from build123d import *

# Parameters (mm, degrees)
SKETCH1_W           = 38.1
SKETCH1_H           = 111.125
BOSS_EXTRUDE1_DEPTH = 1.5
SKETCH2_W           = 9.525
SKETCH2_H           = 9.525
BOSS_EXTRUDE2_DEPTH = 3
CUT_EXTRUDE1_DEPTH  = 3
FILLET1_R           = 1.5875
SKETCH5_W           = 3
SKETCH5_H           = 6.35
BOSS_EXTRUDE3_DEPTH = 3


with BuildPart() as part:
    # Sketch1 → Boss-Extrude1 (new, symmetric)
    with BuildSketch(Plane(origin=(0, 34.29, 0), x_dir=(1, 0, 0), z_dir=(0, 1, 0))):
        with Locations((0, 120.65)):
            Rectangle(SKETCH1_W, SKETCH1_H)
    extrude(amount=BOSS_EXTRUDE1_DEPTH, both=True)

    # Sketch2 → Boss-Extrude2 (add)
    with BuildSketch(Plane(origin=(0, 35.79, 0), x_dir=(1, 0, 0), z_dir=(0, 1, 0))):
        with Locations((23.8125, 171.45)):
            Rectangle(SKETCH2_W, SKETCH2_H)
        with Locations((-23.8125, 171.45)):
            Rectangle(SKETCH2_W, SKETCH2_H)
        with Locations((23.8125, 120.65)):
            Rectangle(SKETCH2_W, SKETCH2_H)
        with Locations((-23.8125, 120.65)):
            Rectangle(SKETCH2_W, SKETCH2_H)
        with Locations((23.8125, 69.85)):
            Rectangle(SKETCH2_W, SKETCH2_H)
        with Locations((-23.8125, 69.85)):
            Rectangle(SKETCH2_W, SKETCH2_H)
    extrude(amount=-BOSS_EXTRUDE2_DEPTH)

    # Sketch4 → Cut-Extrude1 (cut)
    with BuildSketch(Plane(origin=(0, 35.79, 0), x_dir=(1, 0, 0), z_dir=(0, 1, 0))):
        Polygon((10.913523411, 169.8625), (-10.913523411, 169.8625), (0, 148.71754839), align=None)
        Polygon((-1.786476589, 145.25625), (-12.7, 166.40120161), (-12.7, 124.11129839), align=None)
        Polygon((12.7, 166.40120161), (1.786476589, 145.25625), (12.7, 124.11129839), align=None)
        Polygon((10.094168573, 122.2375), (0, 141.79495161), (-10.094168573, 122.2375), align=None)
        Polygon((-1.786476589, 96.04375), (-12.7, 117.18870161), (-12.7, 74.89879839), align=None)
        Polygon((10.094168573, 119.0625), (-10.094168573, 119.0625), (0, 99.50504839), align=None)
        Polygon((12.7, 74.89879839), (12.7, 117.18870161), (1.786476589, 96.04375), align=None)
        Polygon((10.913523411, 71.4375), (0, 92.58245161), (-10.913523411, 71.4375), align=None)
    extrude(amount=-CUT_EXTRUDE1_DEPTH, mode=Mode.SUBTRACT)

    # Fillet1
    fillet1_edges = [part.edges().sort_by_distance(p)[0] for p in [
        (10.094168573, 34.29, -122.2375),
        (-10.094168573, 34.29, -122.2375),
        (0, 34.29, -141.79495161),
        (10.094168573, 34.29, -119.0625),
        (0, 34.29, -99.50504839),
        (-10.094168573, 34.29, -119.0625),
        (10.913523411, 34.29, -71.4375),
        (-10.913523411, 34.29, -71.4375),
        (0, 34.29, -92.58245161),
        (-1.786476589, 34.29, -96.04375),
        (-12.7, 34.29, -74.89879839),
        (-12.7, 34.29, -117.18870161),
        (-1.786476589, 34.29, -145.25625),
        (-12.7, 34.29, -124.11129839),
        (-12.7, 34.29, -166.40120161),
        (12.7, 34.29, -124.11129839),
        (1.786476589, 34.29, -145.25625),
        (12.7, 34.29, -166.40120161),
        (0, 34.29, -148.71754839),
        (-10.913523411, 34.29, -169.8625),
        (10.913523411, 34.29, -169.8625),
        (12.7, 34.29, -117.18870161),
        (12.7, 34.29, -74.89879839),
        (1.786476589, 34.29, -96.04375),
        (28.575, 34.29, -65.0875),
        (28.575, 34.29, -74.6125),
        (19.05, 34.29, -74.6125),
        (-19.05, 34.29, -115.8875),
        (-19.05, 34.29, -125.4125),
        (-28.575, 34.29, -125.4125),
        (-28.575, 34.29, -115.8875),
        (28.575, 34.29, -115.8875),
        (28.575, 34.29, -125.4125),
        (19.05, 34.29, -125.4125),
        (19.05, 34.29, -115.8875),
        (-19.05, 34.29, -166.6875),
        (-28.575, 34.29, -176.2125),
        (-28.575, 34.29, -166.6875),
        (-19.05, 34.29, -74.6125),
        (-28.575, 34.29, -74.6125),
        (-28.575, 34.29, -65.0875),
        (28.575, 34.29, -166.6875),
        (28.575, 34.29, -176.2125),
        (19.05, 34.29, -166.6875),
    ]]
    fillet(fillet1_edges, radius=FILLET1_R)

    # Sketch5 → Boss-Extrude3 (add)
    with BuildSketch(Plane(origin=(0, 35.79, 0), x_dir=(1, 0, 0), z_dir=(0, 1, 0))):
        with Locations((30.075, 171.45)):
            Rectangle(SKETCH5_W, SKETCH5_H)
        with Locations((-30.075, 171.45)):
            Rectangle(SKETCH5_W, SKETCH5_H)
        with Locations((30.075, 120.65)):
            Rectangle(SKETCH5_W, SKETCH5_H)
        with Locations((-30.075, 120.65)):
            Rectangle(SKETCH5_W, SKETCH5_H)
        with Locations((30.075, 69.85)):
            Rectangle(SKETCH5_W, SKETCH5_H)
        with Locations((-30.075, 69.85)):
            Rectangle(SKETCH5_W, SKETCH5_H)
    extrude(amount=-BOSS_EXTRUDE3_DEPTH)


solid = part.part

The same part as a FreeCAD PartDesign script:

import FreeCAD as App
import Part
import Sketcher
Q = App.Units.Quantity


def edges_at(feature, points):
    """Names of the edges that pass closest to the given points."""
    edges = feature.Shape.Edges
    near = lambda p: min(range(len(edges)), key=lambda i: edges[i].distToShape(Part.Vertex(*p))[0])
    return sorted({f"Edge{near(p) + 1}" for p in points})

doc = App.newDocument("Part")
body = doc.addObject("PartDesign::Body", "Body")

# Sketch on XZ plane
sketch1 = body.newObject("Sketcher::SketchObject", "Sketch")
sketch1.AttachmentSupport = (doc.getObject("XZ_Plane"), [""])
sketch1.MapMode = "FlatFace"
sketch1.AttachmentOffset = App.Placement(App.Vector(0, 0, -1.35 * 25.4), App.Rotation())
sketch1.addGeometry([
    Part.LineSegment(App.Vector(-19, -176, 0), App.Vector(-19, -65, 0)),
    Part.LineSegment(App.Vector(-19, -65, 0), App.Vector(19, -65, 0)),
    Part.LineSegment(App.Vector(19, -65, 0), App.Vector(19, -176, 0)),
    Part.LineSegment(App.Vector(19, -176, 0), App.Vector(-19, -176, 0)),
], False)
sketch1.addConstraint([
    Sketcher.Constraint("Coincident", 0, 2, 1, 1),
    Sketcher.Constraint("Coincident", 1, 2, 2, 1),
    Sketcher.Constraint("Coincident", 2, 2, 3, 1),
    Sketcher.Constraint("Coincident", 3, 2, 0, 1),
    Sketcher.Constraint("Vertical", 0),
    Sketcher.Constraint("Horizontal", 1),
    Sketcher.Constraint("Vertical", 2),
    Sketcher.Constraint("Horizontal", 3),
    Sketcher.Constraint("DistanceX", 1, 1, 1, 2, Q("1.5 in")),
    Sketcher.Constraint("DistanceY", 0, 1, 0, 2, Q("4.375 in")),
    Sketcher.Constraint("DistanceX", 0, 2, -1, 1, Q("0.75 in")),
    Sketcher.Constraint("DistanceY", 0, 2, -1, 1, Q("2.5625 in")),
])
pad1 = body.newObject("PartDesign::Pad", "Pad")
pad1.Profile = sketch1
pad1.Length = 3
pad1.Midplane = True

# Sketch on XZ plane
sketch2 = body.newObject("Sketcher::SketchObject", "Sketch001")
sketch2.AttachmentSupport = (doc.getObject("XZ_Plane"), [""])
sketch2.MapMode = "FlatFace"
sketch2.AttachmentOffset = App.Placement(App.Vector(0, 0, -35.79), App.Rotation())
sketch2.addGeometry([
    Part.LineSegment(App.Vector(19, -176, 0), App.Vector(19, -167, 0)),  # 0
    Part.LineSegment(App.Vector(19, -167, 0), App.Vector(29, -167, 0)),  # 1
    Part.LineSegment(App.Vector(29, -167, 0), App.Vector(29, -176, 0)),  # 2
    Part.LineSegment(App.Vector(29, -176, 0), App.Vector(19, -176, 0)),  # 3
    Part.LineSegment(App.Vector(-29, -176, 0), App.Vector(-29, -167, 0)),  # 4
    Part.LineSegment(App.Vector(-29, -167, 0), App.Vector(-19, -167, 0)),  # 5
    Part.LineSegment(App.Vector(-19, -167, 0), App.Vector(-19, -176, 0)),  # 6
    Part.LineSegment(App.Vector(-19, -176, 0), App.Vector(-29, -176, 0)),  # 7
    Part.LineSegment(App.Vector(19, -125, 0), App.Vector(19, -116, 0)),  # 8
    Part.LineSegment(App.Vector(19, -116, 0), App.Vector(29, -116, 0)),  # 9
    Part.LineSegment(App.Vector(29, -116, 0), App.Vector(29, -125, 0)),  # 10
    Part.LineSegment(App.Vector(29, -125, 0), App.Vector(19, -125, 0)),  # 11
    Part.LineSegment(App.Vector(-29, -125, 0), App.Vector(-29, -116, 0)),  # 12
    Part.LineSegment(App.Vector(-29, -116, 0), App.Vector(-19, -116, 0)),  # 13
    Part.LineSegment(App.Vector(-19, -116, 0), App.Vector(-19, -125, 0)),  # 14
    Part.LineSegment(App.Vector(-19, -125, 0), App.Vector(-29, -125, 0)),  # 15
    Part.LineSegment(App.Vector(19, -75, 0), App.Vector(19, -65, 0)),  # 16
    Part.LineSegment(App.Vector(19, -65, 0), App.Vector(29, -65, 0)),  # 17
    Part.LineSegment(App.Vector(29, -65, 0), App.Vector(29, -75, 0)),  # 18
    Part.LineSegment(App.Vector(29, -75, 0), App.Vector(19, -75, 0)),  # 19
    Part.LineSegment(App.Vector(-29, -75, 0), App.Vector(-29, -65, 0)),  # 20
    Part.LineSegment(App.Vector(-29, -65, 0), App.Vector(-19, -65, 0)),  # 21
    Part.LineSegment(App.Vector(-19, -65, 0), App.Vector(-19, -75, 0)),  # 22
    Part.LineSegment(App.Vector(-19, -75, 0), App.Vector(-29, -75, 0)),  # 23
], False)
sketch2.addConstraint([
    Sketcher.Constraint("Coincident", 0, 2, 1, 1),
    Sketcher.Constraint("Coincident", 1, 2, 2, 1),
    Sketcher.Constraint("Coincident", 2, 2, 3, 1),
    Sketcher.Constraint("Coincident", 3, 2, 0, 1),
    Sketcher.Constraint("Coincident", 4, 2, 5, 1),
    Sketcher.Constraint("Coincident", 5, 2, 6, 1),
    Sketcher.Constraint("Coincident", 6, 2, 7, 1),
    Sketcher.Constraint("Coincident", 7, 2, 4, 1),
    Sketcher.Constraint("Coincident", 8, 2, 9, 1),
    Sketcher.Constraint("Coincident", 9, 2, 10, 1),
    Sketcher.Constraint("Coincident", 10, 2, 11, 1),
    Sketcher.Constraint("Coincident", 11, 2, 8, 1),
    Sketcher.Constraint("Coincident", 12, 2, 13, 1),
    Sketcher.Constraint("Coincident", 13, 2, 14, 1),
    Sketcher.Constraint("Coincident", 14, 2, 15, 1),
    Sketcher.Constraint("Coincident", 15, 2, 12, 1),
    Sketcher.Constraint("Coincident", 16, 2, 17, 1),
    Sketcher.Constraint("Coincident", 17, 2, 18, 1),
    Sketcher.Constraint("Coincident", 18, 2, 19, 1),
    Sketcher.Constraint("Coincident", 19, 2, 16, 1),
    Sketcher.Constraint("Coincident", 20, 2, 21, 1),
    Sketcher.Constraint("Coincident", 21, 2, 22, 1),
    Sketcher.Constraint("Coincident", 22, 2, 23, 1),
    Sketcher.Constraint("Coincident", 23, 2, 20, 1),
    Sketcher.Constraint("Vertical", 0),
    Sketcher.Constraint("Horizontal", 1),
    Sketcher.Constraint("Vertical", 2),
    Sketcher.Constraint("Horizontal", 3),
    Sketcher.Constraint("Vertical", 4),
    Sketcher.Constraint("Horizontal", 5),
    Sketcher.Constraint("Vertical", 6),
    Sketcher.Constraint("Horizontal", 7),
    Sketcher.Constraint("Vertical", 8),
    Sketcher.Constraint("Horizontal", 9),
    Sketcher.Constraint("Vertical", 10),
    Sketcher.Constraint("Horizontal", 11),
    Sketcher.Constraint("Vertical", 12),
    Sketcher.Constraint("Horizontal", 13),
    Sketcher.Constraint("Vertical", 14),
    Sketcher.Constraint("Horizontal", 15),
    Sketcher.Constraint("Vertical", 16),
    Sketcher.Constraint("Horizontal", 17),
    Sketcher.Constraint("Vertical", 18),
    Sketcher.Constraint("Horizontal", 19),
    Sketcher.Constraint("Vertical", 20),
    Sketcher.Constraint("Horizontal", 21),
    Sketcher.Constraint("Vertical", 22),
    Sketcher.Constraint("Horizontal", 23),
    Sketcher.Constraint("Symmetric", 1, 2, 4, 2, -2),
    Sketcher.Constraint("Symmetric", 3, 2, 6, 2, -2),
    Sketcher.Constraint("Symmetric", 9, 2, 12, 2, -2),
    Sketcher.Constraint("Symmetric", 11, 2, 14, 2, -2),
    Sketcher.Constraint("Symmetric", 17, 2, 20, 2, -2),
    Sketcher.Constraint("Symmetric", 19, 2, 22, 2, -2),
    Sketcher.Constraint("Vertical", 3, 2, 8, 2),
    Sketcher.Constraint("Vertical", 2, 2, 9, 2),
    Sketcher.Constraint("Vertical", 11, 2, 16, 2),
    Sketcher.Constraint("Vertical", 10, 2, 17, 2),
    Sketcher.Constraint("Equal", 23, 0),
    Sketcher.Constraint("Equal", 6, 8),
    Sketcher.Constraint("Equal", 14, 16),
    Sketcher.Constraint("DistanceY", 0, 2, 8, 2, Q("2 in")),
    Sketcher.Constraint("DistanceY", 8, 2, 16, 2, Q("2 in")),
    Sketcher.Constraint("DistanceX", 5, 2, 0, 2, Q("1.5 in")),
    Sketcher.Constraint("DistanceX", 1, 1, 1, 2, Q("0.375 in")),
    Sketcher.Constraint("DistanceY", 0, 2, -1, 1, Q("6.5625 in")),
])
pad2 = body.newObject("PartDesign::Pad", "Pad001")
pad2.Profile = sketch2
pad2.Length = 3

# Sketch on XZ plane
sketch3 = body.newObject("Sketcher::SketchObject", "Sketch002")
sketch3.AttachmentSupport = (doc.getObject("XZ_Plane"), [""])
sketch3.MapMode = "FlatFace"
sketch3.AttachmentOffset = App.Placement(App.Vector(0, 0, -35.79), App.Rotation())
sketch3.addGeometry([
    Part.LineSegment(App.Vector(11, -170, 0), App.Vector(-11, -170, 0)),  # 0
    Part.LineSegment(App.Vector(-11, -170, 0), App.Vector(0, -149, 0)),  # 1
    Part.LineSegment(App.Vector(0, -149, 0), App.Vector(11, -170, 0)),  # 2
    Part.LineSegment(App.Vector(-2, -145, 0), App.Vector(-13, -166, 0)),  # 3
    Part.LineSegment(App.Vector(-13, -166, 0), App.Vector(-13, -124, 0)),  # 4
    Part.LineSegment(App.Vector(-13, -124, 0), App.Vector(-2, -145, 0)),  # 5
    Part.LineSegment(App.Vector(13, -166, 0), App.Vector(2, -145, 0)),  # 6
    Part.LineSegment(App.Vector(2, -145, 0), App.Vector(13, -124, 0)),  # 7
    Part.LineSegment(App.Vector(13, -124, 0), App.Vector(13, -166, 0)),  # 8
    Part.LineSegment(App.Vector(10, -122, 0), App.Vector(0, -142, 0)),  # 9
    Part.LineSegment(App.Vector(0, -142, 0), App.Vector(-10, -122, 0)),  # 10
    Part.LineSegment(App.Vector(-10, -122, 0), App.Vector(10, -122, 0)),  # 11
    Part.LineSegment(App.Vector(-2, -96, 0), App.Vector(-13, -117, 0)),  # 12
    Part.LineSegment(App.Vector(-13, -117, 0), App.Vector(-13, -75, 0)),  # 13
    Part.LineSegment(App.Vector(-13, -75, 0), App.Vector(-2, -96, 0)),  # 14
    Part.LineSegment(App.Vector(10, -119, 0), App.Vector(-10, -119, 0)),  # 15
    Part.LineSegment(App.Vector(-10, -119, 0), App.Vector(0, -100, 0)),  # 16
    Part.LineSegment(App.Vector(0, -100, 0), App.Vector(10, -119, 0)),  # 17
    Part.LineSegment(App.Vector(13, -75, 0), App.Vector(13, -117, 0)),  # 18
    Part.LineSegment(App.Vector(13, -117, 0), App.Vector(2, -96, 0)),  # 19
    Part.LineSegment(App.Vector(2, -96, 0), App.Vector(13, -75, 0)),  # 20
    Part.LineSegment(App.Vector(11, -71, 0), App.Vector(0, -93, 0)),  # 21
    Part.LineSegment(App.Vector(0, -93, 0), App.Vector(-11, -71, 0)),  # 22
    Part.LineSegment(App.Vector(-11, -71, 0), App.Vector(11, -71, 0)),  # 23
], False)
sketch3.addConstraint([
    Sketcher.Constraint("Coincident", 0, 2, 1, 1),
    Sketcher.Constraint("Coincident", 1, 2, 2, 1),
    Sketcher.Constraint("Coincident", 2, 2, 0, 1),
    Sketcher.Constraint("Coincident", 3, 2, 4, 1),
    Sketcher.Constraint("Coincident", 4, 2, 5, 1),
    Sketcher.Constraint("Coincident", 5, 2, 3, 1),
    Sketcher.Constraint("Coincident", 6, 2, 7, 1),
    Sketcher.Constraint("Coincident", 7, 2, 8, 1),
    Sketcher.Constraint("Coincident", 8, 2, 6, 1),
    Sketcher.Constraint("Coincident", 9, 2, 10, 1),
    Sketcher.Constraint("Coincident", 10, 2, 11, 1),
    Sketcher.Constraint("Coincident", 11, 2, 9, 1),
    Sketcher.Constraint("Coincident", 12, 2, 13, 1),
    Sketcher.Constraint("Coincident", 13, 2, 14, 1),
    Sketcher.Constraint("Coincident", 14, 2, 12, 1),
    Sketcher.Constraint("Coincident", 15, 2, 16, 1),
    Sketcher.Constraint("Coincident", 16, 2, 17, 1),
    Sketcher.Constraint("Coincident", 17, 2, 15, 1),
    Sketcher.Constraint("Coincident", 18, 2, 19, 1),
    Sketcher.Constraint("Coincident", 19, 2, 20, 1),
    Sketcher.Constraint("Coincident", 20, 2, 18, 1),
    Sketcher.Constraint("Coincident", 21, 2, 22, 1),
    Sketcher.Constraint("Coincident", 22, 2, 23, 1),
    Sketcher.Constraint("Coincident", 23, 2, 21, 1),
    Sketcher.Constraint("Horizontal", 0),
    Sketcher.Constraint("Vertical", 4),
    Sketcher.Constraint("Vertical", 8),
    Sketcher.Constraint("Horizontal", 11),
    Sketcher.Constraint("Vertical", 13),
    Sketcher.Constraint("Horizontal", 15),
    Sketcher.Constraint("Vertical", 18),
    Sketcher.Constraint("Horizontal", 23),
    Sketcher.Constraint("Symmetric", 5, 2, 6, 2, -2),
    Sketcher.Constraint("Symmetric", 4, 2, 7, 2, -2),
    Sketcher.Constraint("Symmetric", 12, 2, 18, 2, -2),
    Sketcher.Constraint("Symmetric", 14, 2, 19, 2, -2),
    Sketcher.Constraint("PointOnObject", 1, 2, -2),
    Sketcher.Constraint("PointOnObject", 9, 2, -2),
    Sketcher.Constraint("PointOnObject", 16, 2, -2),
    Sketcher.Constraint("PointOnObject", 21, 2, -2),
    Sketcher.Constraint("Parallel", 1, 3),
    Sketcher.Constraint("Parallel", 2, 5),
    Sketcher.Constraint("Parallel", 5, 6),
    Sketcher.Constraint("Parallel", 3, 7),
    Sketcher.Constraint("Parallel", 7, 9),
    Sketcher.Constraint("Parallel", 6, 10),
    Sketcher.Constraint("Parallel", 9, 12),
    Sketcher.Constraint("Parallel", 10, 14),
    Sketcher.Constraint("Parallel", 12, 16),
    Sketcher.Constraint("Parallel", 14, 17),
    Sketcher.Constraint("Parallel", 16, 20),
    Sketcher.Constraint("Parallel", 20, 21),
    Sketcher.Constraint("Parallel", 19, 22),
    Sketcher.Constraint("Vertical", 4, 2, 12, 2),
    Sketcher.Constraint("Vertical", 5, 2, 14, 2),
    Sketcher.Constraint("Vertical", 10, 2, 15, 2),
    Sketcher.Constraint("Vertical", 0, 2, 22, 2),
    Sketcher.Constraint("Equal", 2, 3),
    Sketcher.Constraint("DistanceX", 4, 2, 7, 2, Q("1 in")),
    Sketcher.Constraint("DistanceY", 0, 2, -1, 1, Q("6.6875 in")),
    Sketcher.Constraint("DistanceY", 5, 2, -1, 1, Q("5.71875 in")),
    Sketcher.Constraint("DistanceY", 10, 2, -1, 1, Q("4.8125 in")),
    Sketcher.Constraint("DistanceY", 14, 2, -1, 1, Q("3.78125 in")),
    Sketcher.Constraint("DistanceY", 15, 2, -1, 1, Q("4.6875 in")),
    Sketcher.Constraint("DistanceY", 22, 2, -1, 1, Q("2.8125 in")),
    Sketcher.Constraint("DistanceY", 9, 2, 12, 2, Q("0.96875 in")),
    Sketcher.Constraint("DistanceY", 3, 2, -1, 1, Q("166.401202 mm")),
    Sketcher.Constraint("Distance", 1, Q("23.795251 mm")),
])
pocket1 = body.newObject("PartDesign::Pocket", "Pocket")
pocket1.Profile = sketch3
pocket1.Length = 3
pocket1.Reversed = True
doc.recompute()

fillet = body.newObject("PartDesign::Fillet", "Fillet")
fillet.Base = (pocket1, edges_at(pocket1, [
    (10.094, 34.29, -122.237),
    (-10.094, 34.29, -122.237),
    (0, 34.29, -141.795),
    (10.094, 34.29, -119.062),
    (0, 34.29, -99.505),
    (-10.094, 34.29, -119.062),
    (10.914, 34.29, -71.438),
    (-10.914, 34.29, -71.438),
    (0, 34.29, -92.582),
    (-1.786, 34.29, -96.044),
    (-12.7, 34.29, -74.899),
    (-12.7, 34.29, -117.189),
    (-1.786, 34.29, -145.256),
    (-12.7, 34.29, -124.111),
    (-12.7, 34.29, -166.401),
    (12.7, 34.29, -124.111),
    (1.786, 34.29, -145.256),
    (12.7, 34.29, -166.401),
    (0, 34.29, -148.718),
    (-10.914, 34.29, -169.863),
    (10.914, 34.29, -169.863),
    (12.7, 34.29, -117.189),
    (12.7, 34.29, -74.899),
    (1.786, 34.29, -96.044),
    (28.575, 34.29, -65.088),
    (28.575, 34.29, -74.612),
    (19.05, 34.29, -74.612),
    (-19.05, 34.29, -115.888),
    (-19.05, 34.29, -125.412),
    (-28.575, 34.29, -125.412),
    (-28.575, 34.29, -115.888),
    (28.575, 34.29, -115.888),
    (28.575, 34.29, -125.412),
    (19.05, 34.29, -125.412),
    (19.05, 34.29, -115.888),
    (-19.05, 34.29, -166.688),
    (-28.575, 34.29, -176.213),
    (-28.575, 34.29, -166.688),
    (-19.05, 34.29, -74.612),
    (-28.575, 34.29, -74.612),
    (-28.575, 34.29, -65.088),
    (28.575, 34.29, -166.688),
    (28.575, 34.29, -176.213),
    (19.05, 34.29, -166.688),
]))
fillet.Radius = Q("0.0625 in")

# Sketch on XZ plane
sketch4 = body.newObject("Sketcher::SketchObject", "Sketch003")
sketch4.AttachmentSupport = (doc.getObject("XZ_Plane"), [""])
sketch4.MapMode = "FlatFace"
sketch4.AttachmentOffset = App.Placement(App.Vector(0, 0, -35.79), App.Rotation())
sketch4.addGeometry([
    Part.LineSegment(App.Vector(28.6, -174.6, 0), App.Vector(28.6, -168.3, 0)),  # 0
    Part.LineSegment(App.Vector(28.6, -168.3, 0), App.Vector(31.6, -168.3, 0)),  # 1
    Part.LineSegment(App.Vector(31.6, -168.3, 0), App.Vector(31.6, -174.6, 0)),  # 2
    Part.LineSegment(App.Vector(31.6, -174.6, 0), App.Vector(28.6, -174.6, 0)),  # 3
    Part.LineSegment(App.Vector(-31.6, -174.6, 0), App.Vector(-31.6, -168.3, 0)),  # 4
    Part.LineSegment(App.Vector(-31.6, -168.3, 0), App.Vector(-28.6, -168.3, 0)),  # 5
    Part.LineSegment(App.Vector(-28.6, -168.3, 0), App.Vector(-28.6, -174.6, 0)),  # 6
    Part.LineSegment(App.Vector(-28.6, -174.6, 0), App.Vector(-31.6, -174.6, 0)),  # 7
    Part.LineSegment(App.Vector(28.6, -123.8, 0), App.Vector(28.6, -117.5, 0)),  # 8
    Part.LineSegment(App.Vector(28.6, -117.5, 0), App.Vector(31.6, -117.5, 0)),  # 9
    Part.LineSegment(App.Vector(31.6, -117.5, 0), App.Vector(31.6, -123.8, 0)),  # 10
    Part.LineSegment(App.Vector(31.6, -123.8, 0), App.Vector(28.6, -123.8, 0)),  # 11
    Part.LineSegment(App.Vector(-31.6, -123.8, 0), App.Vector(-31.6, -117.5, 0)),  # 12
    Part.LineSegment(App.Vector(-31.6, -117.5, 0), App.Vector(-28.6, -117.5, 0)),  # 13
    Part.LineSegment(App.Vector(-28.6, -117.5, 0), App.Vector(-28.6, -123.8, 0)),  # 14
    Part.LineSegment(App.Vector(-28.6, -123.8, 0), App.Vector(-31.6, -123.8, 0)),  # 15
    Part.LineSegment(App.Vector(28.6, -73, 0), App.Vector(28.6, -66.7, 0)),  # 16
    Part.LineSegment(App.Vector(28.6, -66.7, 0), App.Vector(31.6, -66.7, 0)),  # 17
    Part.LineSegment(App.Vector(31.6, -66.7, 0), App.Vector(31.6, -73, 0)),  # 18
    Part.LineSegment(App.Vector(31.6, -73, 0), App.Vector(28.6, -73, 0)),  # 19
    Part.LineSegment(App.Vector(-31.6, -73, 0), App.Vector(-31.6, -66.7, 0)),  # 20
    Part.LineSegment(App.Vector(-31.6, -66.7, 0), App.Vector(-28.6, -66.7, 0)),  # 21
    Part.LineSegment(App.Vector(-28.6, -66.7, 0), App.Vector(-28.6, -73, 0)),  # 22
    Part.LineSegment(App.Vector(-28.6, -73, 0), App.Vector(-31.6, -73, 0)),  # 23
], False)
sketch4.addConstraint([
    Sketcher.Constraint("Coincident", 0, 2, 1, 1),
    Sketcher.Constraint("Coincident", 1, 2, 2, 1),
    Sketcher.Constraint("Coincident", 2, 2, 3, 1),
    Sketcher.Constraint("Coincident", 3, 2, 0, 1),
    Sketcher.Constraint("Coincident", 4, 2, 5, 1),
    Sketcher.Constraint("Coincident", 5, 2, 6, 1),
    Sketcher.Constraint("Coincident", 6, 2, 7, 1),
    Sketcher.Constraint("Coincident", 7, 2, 4, 1),
    Sketcher.Constraint("Coincident", 8, 2, 9, 1),
    Sketcher.Constraint("Coincident", 9, 2, 10, 1),
    Sketcher.Constraint("Coincident", 10, 2, 11, 1),
    Sketcher.Constraint("Coincident", 11, 2, 8, 1),
    Sketcher.Constraint("Coincident", 12, 2, 13, 1),
    Sketcher.Constraint("Coincident", 13, 2, 14, 1),
    Sketcher.Constraint("Coincident", 14, 2, 15, 1),
    Sketcher.Constraint("Coincident", 15, 2, 12, 1),
    Sketcher.Constraint("Coincident", 16, 2, 17, 1),
    Sketcher.Constraint("Coincident", 17, 2, 18, 1),
    Sketcher.Constraint("Coincident", 18, 2, 19, 1),
    Sketcher.Constraint("Coincident", 19, 2, 16, 1),
    Sketcher.Constraint("Coincident", 20, 2, 21, 1),
    Sketcher.Constraint("Coincident", 21, 2, 22, 1),
    Sketcher.Constraint("Coincident", 22, 2, 23, 1),
    Sketcher.Constraint("Coincident", 23, 2, 20, 1),
    Sketcher.Constraint("Vertical", 0),
    Sketcher.Constraint("Horizontal", 1),
    Sketcher.Constraint("Vertical", 2),
    Sketcher.Constraint("Horizontal", 3),
    Sketcher.Constraint("Vertical", 4),
    Sketcher.Constraint("Horizontal", 5),
    Sketcher.Constraint("Vertical", 6),
    Sketcher.Constraint("Horizontal", 7),
    Sketcher.Constraint("Vertical", 8),
    Sketcher.Constraint("Horizontal", 9),
    Sketcher.Constraint("Vertical", 10),
    Sketcher.Constraint("Horizontal", 11),
    Sketcher.Constraint("Vertical", 12),
    Sketcher.Constraint("Horizontal", 13),
    Sketcher.Constraint("Vertical", 14),
    Sketcher.Constraint("Horizontal", 15),
    Sketcher.Constraint("Vertical", 16),
    Sketcher.Constraint("Horizontal", 17),
    Sketcher.Constraint("Vertical", 18),
    Sketcher.Constraint("Horizontal", 19),
    Sketcher.Constraint("Vertical", 20),
    Sketcher.Constraint("Horizontal", 21),
    Sketcher.Constraint("Vertical", 22),
    Sketcher.Constraint("Horizontal", 23),
    Sketcher.Constraint("Symmetric", 1, 2, 4, 2, -2),
    Sketcher.Constraint("Symmetric", 3, 2, 6, 2, -2),
    Sketcher.Constraint("Symmetric", 9, 2, 12, 2, -2),
    Sketcher.Constraint("Symmetric", 11, 2, 14, 2, -2),
    Sketcher.Constraint("Symmetric", 17, 2, 20, 2, -2),
    Sketcher.Constraint("Symmetric", 19, 2, 22, 2, -2),
    Sketcher.Constraint("Vertical", 3, 2, 8, 2),
    Sketcher.Constraint("Vertical", 2, 2, 9, 2),
    Sketcher.Constraint("Vertical", 11, 2, 16, 2),
    Sketcher.Constraint("Vertical", 10, 2, 17, 2),
    Sketcher.Constraint("Equal", 6, 8),
    Sketcher.Constraint("Equal", 14, 16),
    Sketcher.Constraint("DistanceY", 0, 2, 8, 2, Q("2 in")),
    Sketcher.Constraint("DistanceY", 8, 2, 16, 2, Q("2 in")),
    Sketcher.Constraint("DistanceY", 0, 1, 0, 2, Q("0.25 in")),
    Sketcher.Constraint("DistanceX", 5, 2, 0, 2, Q("2.25 in")),
    Sketcher.Constraint("DistanceY", 0, 2, -1, 1, Q("6.625 in")),
    Sketcher.Constraint("DistanceX", 1, 1, 1, 2, Q("3 mm")),
])
pad3 = body.newObject("PartDesign::Pad", "Pad002")
pad3.Profile = sketch4
pad3.Length = 3

doc.recompute()
